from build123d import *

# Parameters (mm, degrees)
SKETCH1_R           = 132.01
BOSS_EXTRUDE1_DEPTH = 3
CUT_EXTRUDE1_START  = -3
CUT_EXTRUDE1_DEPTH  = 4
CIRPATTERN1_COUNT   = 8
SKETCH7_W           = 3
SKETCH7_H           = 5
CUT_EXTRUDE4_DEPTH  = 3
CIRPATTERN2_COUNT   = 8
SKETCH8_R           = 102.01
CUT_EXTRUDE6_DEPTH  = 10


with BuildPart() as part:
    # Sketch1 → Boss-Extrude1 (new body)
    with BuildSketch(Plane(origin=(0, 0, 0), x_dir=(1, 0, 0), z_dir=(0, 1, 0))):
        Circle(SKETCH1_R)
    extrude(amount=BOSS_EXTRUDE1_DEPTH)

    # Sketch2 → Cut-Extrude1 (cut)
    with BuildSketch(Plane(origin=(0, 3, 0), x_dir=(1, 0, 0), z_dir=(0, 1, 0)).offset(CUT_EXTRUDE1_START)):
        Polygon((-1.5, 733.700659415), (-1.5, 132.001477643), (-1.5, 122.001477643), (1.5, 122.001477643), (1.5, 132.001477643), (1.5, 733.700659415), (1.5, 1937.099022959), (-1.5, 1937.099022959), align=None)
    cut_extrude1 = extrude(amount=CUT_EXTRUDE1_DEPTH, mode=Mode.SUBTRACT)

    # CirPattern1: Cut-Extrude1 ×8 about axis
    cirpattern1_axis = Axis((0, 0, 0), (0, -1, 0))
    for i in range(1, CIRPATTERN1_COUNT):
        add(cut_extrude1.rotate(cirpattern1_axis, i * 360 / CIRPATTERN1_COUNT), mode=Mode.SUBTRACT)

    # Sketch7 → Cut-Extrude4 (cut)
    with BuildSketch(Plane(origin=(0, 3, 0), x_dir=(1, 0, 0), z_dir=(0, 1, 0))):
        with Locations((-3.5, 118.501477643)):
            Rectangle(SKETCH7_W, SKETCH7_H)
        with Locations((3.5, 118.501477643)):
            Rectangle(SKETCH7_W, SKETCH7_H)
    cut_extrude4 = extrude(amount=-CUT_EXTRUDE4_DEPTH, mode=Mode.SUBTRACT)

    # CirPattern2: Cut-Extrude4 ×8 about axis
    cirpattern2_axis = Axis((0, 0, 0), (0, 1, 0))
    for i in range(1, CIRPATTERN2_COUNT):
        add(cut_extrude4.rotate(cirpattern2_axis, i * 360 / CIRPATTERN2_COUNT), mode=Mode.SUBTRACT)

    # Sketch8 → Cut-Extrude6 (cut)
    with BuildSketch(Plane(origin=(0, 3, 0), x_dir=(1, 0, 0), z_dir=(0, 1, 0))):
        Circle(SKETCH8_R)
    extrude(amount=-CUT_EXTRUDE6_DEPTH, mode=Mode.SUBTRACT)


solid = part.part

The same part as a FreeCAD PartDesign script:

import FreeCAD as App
import Part
import Sketcher

V = App.Vector
Q = App.Units.Quantity

doc = App.newDocument("Part")
body = doc.addObject("PartDesign::Body", "Body")

sketch1 = doc.addObject("Sketcher::SketchObject", "Sketch")
body.addObject(sketch1)
sketch1.AttachmentSupport = (doc.XZ_Plane, [""])
sketch1.MapMode = "FlatFace"
sketch1.addGeometry(Part.Circle(V(0, 0, 0), V(0, 0, 1), 132), False)
sketch1.addConstraint([
    Sketcher.Constraint("Coincident", 0, 3, -1, 1),
    Sketcher.Constraint("Diameter", 0, Q("264.02 mm")),
])
pad1 = doc.addObject("PartDesign::Pad", "Pad")
body.addObject(pad1)
pad1.Profile = sketch1
pad1.Length = 3
pad1.Reversed = True

sketch2 = doc.addObject("Sketcher::SketchObject", "Sketch001")
body.addObject(sketch2)
sketch2.AttachmentSupport = (doc.XZ_Plane, [""])
sketch2.MapMode = "FlatFace"
sketch2.addGeometry([
    Part.LineSegment(V(-1.5, -122, 0), V(1.5, -122, 0)),
    Part.LineSegment(V(1.5, -122, 0), V(1.5, -1937.1, 0)),
    Part.LineSegment(V(1.5, -1937.1, 0), V(-1.5, -1937.1, 0)),
    Part.LineSegment(V(-1.5, -1937.1, 0), V(-1.5, -122, 0)),
], False)
sketch2.addConstraint([
    Sketcher.Constraint("Coincident", 0, 2, 1, 1),
    Sketcher.Constraint("Coincident", 1, 2, 2, 1),
    Sketcher.Constraint("Coincident", 2, 2, 3, 1),
    Sketcher.Constraint("Coincident", 3, 2, 0, 1),
    Sketcher.Constraint("Horizontal", 0),
    Sketcher.Constraint("Vertical", 1),
    Sketcher.Constraint("Horizontal", 2),
    Sketcher.Constraint("Vertical", 3),
    Sketcher.Constraint("DistanceX", 0, 1, 0, 2, Q("3 mm")),
    Sketcher.Constraint("DistanceX", -1, 1, 0, 2, Q("1.5 mm")),
    Sketcher.Constraint("DistanceY", 1, 2, 1, 1, Q("1815.097545 mm")),
    Sketcher.Constraint("DistanceY", 0, 2, -1, 1, Q("122.001478 mm")),
])
pocket1 = doc.addObject("PartDesign::Pocket", "Pocket")
body.addObject(pocket1)
pocket1.Profile = sketch2
pocket1.Length = 4
doc.recompute()

polarpattern = doc.addObject("PartDesign::PolarPattern", "PolarPattern")
body.addObject(polarpattern)
polarpattern.Originals = [pocket1]
polarpattern.Axis = (doc.Y_Axis, [""])
polarpattern.Angle = 360
polarpattern.Occurrences = 8
body.Tip = polarpattern

sketch3 = doc.addObject("Sketcher::SketchObject", "Sketch002")
body.addObject(sketch3)
sketch3.AttachmentSupport = (doc.XZ_Plane, [""])
sketch3.MapMode = "FlatFace"
sketch3.AttachmentOffset = App.Placement(V(0, 0, -3), App.Rotation())
sketch3.addGeometry([
    Part.LineSegment(V(-5, -121, 0), V(-5, -116, 0)),
    Part.LineSegment(V(-5, -116, 0), V(-2, -116, 0)),
    Part.LineSegment(V(-2, -116, 0), V(-2, -121, 0)),
    Part.LineSegment(V(-2, -121, 0), V(-5, -121, 0)),
    Part.LineSegment(V(2, -121, 0), V(2, -116, 0)),
    Part.LineSegment(V(2, -116, 0), V(5, -116, 0)),
    Part.LineSegment(V(5, -116, 0), V(5, -121, 0)),
    Part.LineSegment(V(5, -121, 0), V(2, -121, 0)),
], False)
sketch3.addConstraint([
    Sketcher.Constraint("Coincident", 0, 2, 1, 1),
    Sketcher.Constraint("Coincident", 1, 2, 2, 1),
    Sketcher.Constraint("Coincident", 2, 2, 3, 1),
    Sketcher.Constraint("Coincident", 3, 2, 0, 1),
    Sketcher.Constraint("Coincident", 4, 2, 5, 1),
    Sketcher.Constraint("Coincident", 5, 2, 6, 1),
    Sketcher.Constraint("Coincident", 6, 2, 7, 1),
    Sketcher.Constraint("Coincident", 7, 2, 4, 1),
    Sketcher.Constraint("Vertical", 0),
    Sketcher.Constraint("Horizontal", 1),
    Sketcher.Constraint("Vertical", 2),
    Sketcher.Constraint("Horizontal", 3),
    Sketcher.Constraint("Vertical", 4),
    Sketcher.Constraint("Horizontal", 5),
    Sketcher.Constraint("Vertical", 6),
    Sketcher.Constraint("Horizontal", 7),
    Sketcher.Constraint("Symmetric", 1, 2, 4, 2, -2),
    Sketcher.Constraint("Symmetric", 3, 2, 6, 2, -2),
    Sketcher.Constraint("DistanceX", 1, 1, 1, 2, Q("3 mm")),
    Sketcher.Constraint("DistanceY", 0, 1, 0, 2, Q("5 mm")),
    Sketcher.Constraint("DistanceX", 0, 2, -1, 1, Q("5 mm")),
    Sketcher.Constraint("DistanceY", 0, 2, -1, 1, Q("116.001478 mm")),
])
pocket2 = doc.addObject("PartDesign::Pocket", "Pocket001")
body.addObject(pocket2)
pocket2.Profile = sketch3
pocket2.Length = 3
pocket2.Reversed = True
doc.recompute()

polarpattern2 = doc.addObject("PartDesign::PolarPattern", "PolarPattern001")
body.addObject(polarpattern2)
polarpattern2.Originals = [pocket2]
polarpattern2.Axis = (doc.Y_Axis, [""])
polarpattern2.Angle = 360
polarpattern2.Occurrences = 8
body.Tip = polarpattern2

sketch4 = doc.addObject("Sketcher::SketchObject", "Sketch003")
body.addObject(sketch4)
sketch4.AttachmentSupport = (doc.XZ_Plane, [""])
sketch4.MapMode = "FlatFace"
sketch4.AttachmentOffset = App.Placement(V(0, 0, -3), App.Rotation())
sketch4.addGeometry(Part.Circle(V(0, 0, 0), V(0, 0, 1), 102), False)
sketch4.addConstraint([
    Sketcher.Constraint("Coincident", 0, 3, -1, 1),
    Sketcher.Constraint("Diameter", 0, Q("204.02 mm")),
])
pocket3 = doc.addObject("PartDesign::Pocket", "Pocket002")
body.addObject(pocket3)
pocket3.Profile = sketch4
pocket3.Length = 10
pocket3.Reversed = True

doc.recompute()
